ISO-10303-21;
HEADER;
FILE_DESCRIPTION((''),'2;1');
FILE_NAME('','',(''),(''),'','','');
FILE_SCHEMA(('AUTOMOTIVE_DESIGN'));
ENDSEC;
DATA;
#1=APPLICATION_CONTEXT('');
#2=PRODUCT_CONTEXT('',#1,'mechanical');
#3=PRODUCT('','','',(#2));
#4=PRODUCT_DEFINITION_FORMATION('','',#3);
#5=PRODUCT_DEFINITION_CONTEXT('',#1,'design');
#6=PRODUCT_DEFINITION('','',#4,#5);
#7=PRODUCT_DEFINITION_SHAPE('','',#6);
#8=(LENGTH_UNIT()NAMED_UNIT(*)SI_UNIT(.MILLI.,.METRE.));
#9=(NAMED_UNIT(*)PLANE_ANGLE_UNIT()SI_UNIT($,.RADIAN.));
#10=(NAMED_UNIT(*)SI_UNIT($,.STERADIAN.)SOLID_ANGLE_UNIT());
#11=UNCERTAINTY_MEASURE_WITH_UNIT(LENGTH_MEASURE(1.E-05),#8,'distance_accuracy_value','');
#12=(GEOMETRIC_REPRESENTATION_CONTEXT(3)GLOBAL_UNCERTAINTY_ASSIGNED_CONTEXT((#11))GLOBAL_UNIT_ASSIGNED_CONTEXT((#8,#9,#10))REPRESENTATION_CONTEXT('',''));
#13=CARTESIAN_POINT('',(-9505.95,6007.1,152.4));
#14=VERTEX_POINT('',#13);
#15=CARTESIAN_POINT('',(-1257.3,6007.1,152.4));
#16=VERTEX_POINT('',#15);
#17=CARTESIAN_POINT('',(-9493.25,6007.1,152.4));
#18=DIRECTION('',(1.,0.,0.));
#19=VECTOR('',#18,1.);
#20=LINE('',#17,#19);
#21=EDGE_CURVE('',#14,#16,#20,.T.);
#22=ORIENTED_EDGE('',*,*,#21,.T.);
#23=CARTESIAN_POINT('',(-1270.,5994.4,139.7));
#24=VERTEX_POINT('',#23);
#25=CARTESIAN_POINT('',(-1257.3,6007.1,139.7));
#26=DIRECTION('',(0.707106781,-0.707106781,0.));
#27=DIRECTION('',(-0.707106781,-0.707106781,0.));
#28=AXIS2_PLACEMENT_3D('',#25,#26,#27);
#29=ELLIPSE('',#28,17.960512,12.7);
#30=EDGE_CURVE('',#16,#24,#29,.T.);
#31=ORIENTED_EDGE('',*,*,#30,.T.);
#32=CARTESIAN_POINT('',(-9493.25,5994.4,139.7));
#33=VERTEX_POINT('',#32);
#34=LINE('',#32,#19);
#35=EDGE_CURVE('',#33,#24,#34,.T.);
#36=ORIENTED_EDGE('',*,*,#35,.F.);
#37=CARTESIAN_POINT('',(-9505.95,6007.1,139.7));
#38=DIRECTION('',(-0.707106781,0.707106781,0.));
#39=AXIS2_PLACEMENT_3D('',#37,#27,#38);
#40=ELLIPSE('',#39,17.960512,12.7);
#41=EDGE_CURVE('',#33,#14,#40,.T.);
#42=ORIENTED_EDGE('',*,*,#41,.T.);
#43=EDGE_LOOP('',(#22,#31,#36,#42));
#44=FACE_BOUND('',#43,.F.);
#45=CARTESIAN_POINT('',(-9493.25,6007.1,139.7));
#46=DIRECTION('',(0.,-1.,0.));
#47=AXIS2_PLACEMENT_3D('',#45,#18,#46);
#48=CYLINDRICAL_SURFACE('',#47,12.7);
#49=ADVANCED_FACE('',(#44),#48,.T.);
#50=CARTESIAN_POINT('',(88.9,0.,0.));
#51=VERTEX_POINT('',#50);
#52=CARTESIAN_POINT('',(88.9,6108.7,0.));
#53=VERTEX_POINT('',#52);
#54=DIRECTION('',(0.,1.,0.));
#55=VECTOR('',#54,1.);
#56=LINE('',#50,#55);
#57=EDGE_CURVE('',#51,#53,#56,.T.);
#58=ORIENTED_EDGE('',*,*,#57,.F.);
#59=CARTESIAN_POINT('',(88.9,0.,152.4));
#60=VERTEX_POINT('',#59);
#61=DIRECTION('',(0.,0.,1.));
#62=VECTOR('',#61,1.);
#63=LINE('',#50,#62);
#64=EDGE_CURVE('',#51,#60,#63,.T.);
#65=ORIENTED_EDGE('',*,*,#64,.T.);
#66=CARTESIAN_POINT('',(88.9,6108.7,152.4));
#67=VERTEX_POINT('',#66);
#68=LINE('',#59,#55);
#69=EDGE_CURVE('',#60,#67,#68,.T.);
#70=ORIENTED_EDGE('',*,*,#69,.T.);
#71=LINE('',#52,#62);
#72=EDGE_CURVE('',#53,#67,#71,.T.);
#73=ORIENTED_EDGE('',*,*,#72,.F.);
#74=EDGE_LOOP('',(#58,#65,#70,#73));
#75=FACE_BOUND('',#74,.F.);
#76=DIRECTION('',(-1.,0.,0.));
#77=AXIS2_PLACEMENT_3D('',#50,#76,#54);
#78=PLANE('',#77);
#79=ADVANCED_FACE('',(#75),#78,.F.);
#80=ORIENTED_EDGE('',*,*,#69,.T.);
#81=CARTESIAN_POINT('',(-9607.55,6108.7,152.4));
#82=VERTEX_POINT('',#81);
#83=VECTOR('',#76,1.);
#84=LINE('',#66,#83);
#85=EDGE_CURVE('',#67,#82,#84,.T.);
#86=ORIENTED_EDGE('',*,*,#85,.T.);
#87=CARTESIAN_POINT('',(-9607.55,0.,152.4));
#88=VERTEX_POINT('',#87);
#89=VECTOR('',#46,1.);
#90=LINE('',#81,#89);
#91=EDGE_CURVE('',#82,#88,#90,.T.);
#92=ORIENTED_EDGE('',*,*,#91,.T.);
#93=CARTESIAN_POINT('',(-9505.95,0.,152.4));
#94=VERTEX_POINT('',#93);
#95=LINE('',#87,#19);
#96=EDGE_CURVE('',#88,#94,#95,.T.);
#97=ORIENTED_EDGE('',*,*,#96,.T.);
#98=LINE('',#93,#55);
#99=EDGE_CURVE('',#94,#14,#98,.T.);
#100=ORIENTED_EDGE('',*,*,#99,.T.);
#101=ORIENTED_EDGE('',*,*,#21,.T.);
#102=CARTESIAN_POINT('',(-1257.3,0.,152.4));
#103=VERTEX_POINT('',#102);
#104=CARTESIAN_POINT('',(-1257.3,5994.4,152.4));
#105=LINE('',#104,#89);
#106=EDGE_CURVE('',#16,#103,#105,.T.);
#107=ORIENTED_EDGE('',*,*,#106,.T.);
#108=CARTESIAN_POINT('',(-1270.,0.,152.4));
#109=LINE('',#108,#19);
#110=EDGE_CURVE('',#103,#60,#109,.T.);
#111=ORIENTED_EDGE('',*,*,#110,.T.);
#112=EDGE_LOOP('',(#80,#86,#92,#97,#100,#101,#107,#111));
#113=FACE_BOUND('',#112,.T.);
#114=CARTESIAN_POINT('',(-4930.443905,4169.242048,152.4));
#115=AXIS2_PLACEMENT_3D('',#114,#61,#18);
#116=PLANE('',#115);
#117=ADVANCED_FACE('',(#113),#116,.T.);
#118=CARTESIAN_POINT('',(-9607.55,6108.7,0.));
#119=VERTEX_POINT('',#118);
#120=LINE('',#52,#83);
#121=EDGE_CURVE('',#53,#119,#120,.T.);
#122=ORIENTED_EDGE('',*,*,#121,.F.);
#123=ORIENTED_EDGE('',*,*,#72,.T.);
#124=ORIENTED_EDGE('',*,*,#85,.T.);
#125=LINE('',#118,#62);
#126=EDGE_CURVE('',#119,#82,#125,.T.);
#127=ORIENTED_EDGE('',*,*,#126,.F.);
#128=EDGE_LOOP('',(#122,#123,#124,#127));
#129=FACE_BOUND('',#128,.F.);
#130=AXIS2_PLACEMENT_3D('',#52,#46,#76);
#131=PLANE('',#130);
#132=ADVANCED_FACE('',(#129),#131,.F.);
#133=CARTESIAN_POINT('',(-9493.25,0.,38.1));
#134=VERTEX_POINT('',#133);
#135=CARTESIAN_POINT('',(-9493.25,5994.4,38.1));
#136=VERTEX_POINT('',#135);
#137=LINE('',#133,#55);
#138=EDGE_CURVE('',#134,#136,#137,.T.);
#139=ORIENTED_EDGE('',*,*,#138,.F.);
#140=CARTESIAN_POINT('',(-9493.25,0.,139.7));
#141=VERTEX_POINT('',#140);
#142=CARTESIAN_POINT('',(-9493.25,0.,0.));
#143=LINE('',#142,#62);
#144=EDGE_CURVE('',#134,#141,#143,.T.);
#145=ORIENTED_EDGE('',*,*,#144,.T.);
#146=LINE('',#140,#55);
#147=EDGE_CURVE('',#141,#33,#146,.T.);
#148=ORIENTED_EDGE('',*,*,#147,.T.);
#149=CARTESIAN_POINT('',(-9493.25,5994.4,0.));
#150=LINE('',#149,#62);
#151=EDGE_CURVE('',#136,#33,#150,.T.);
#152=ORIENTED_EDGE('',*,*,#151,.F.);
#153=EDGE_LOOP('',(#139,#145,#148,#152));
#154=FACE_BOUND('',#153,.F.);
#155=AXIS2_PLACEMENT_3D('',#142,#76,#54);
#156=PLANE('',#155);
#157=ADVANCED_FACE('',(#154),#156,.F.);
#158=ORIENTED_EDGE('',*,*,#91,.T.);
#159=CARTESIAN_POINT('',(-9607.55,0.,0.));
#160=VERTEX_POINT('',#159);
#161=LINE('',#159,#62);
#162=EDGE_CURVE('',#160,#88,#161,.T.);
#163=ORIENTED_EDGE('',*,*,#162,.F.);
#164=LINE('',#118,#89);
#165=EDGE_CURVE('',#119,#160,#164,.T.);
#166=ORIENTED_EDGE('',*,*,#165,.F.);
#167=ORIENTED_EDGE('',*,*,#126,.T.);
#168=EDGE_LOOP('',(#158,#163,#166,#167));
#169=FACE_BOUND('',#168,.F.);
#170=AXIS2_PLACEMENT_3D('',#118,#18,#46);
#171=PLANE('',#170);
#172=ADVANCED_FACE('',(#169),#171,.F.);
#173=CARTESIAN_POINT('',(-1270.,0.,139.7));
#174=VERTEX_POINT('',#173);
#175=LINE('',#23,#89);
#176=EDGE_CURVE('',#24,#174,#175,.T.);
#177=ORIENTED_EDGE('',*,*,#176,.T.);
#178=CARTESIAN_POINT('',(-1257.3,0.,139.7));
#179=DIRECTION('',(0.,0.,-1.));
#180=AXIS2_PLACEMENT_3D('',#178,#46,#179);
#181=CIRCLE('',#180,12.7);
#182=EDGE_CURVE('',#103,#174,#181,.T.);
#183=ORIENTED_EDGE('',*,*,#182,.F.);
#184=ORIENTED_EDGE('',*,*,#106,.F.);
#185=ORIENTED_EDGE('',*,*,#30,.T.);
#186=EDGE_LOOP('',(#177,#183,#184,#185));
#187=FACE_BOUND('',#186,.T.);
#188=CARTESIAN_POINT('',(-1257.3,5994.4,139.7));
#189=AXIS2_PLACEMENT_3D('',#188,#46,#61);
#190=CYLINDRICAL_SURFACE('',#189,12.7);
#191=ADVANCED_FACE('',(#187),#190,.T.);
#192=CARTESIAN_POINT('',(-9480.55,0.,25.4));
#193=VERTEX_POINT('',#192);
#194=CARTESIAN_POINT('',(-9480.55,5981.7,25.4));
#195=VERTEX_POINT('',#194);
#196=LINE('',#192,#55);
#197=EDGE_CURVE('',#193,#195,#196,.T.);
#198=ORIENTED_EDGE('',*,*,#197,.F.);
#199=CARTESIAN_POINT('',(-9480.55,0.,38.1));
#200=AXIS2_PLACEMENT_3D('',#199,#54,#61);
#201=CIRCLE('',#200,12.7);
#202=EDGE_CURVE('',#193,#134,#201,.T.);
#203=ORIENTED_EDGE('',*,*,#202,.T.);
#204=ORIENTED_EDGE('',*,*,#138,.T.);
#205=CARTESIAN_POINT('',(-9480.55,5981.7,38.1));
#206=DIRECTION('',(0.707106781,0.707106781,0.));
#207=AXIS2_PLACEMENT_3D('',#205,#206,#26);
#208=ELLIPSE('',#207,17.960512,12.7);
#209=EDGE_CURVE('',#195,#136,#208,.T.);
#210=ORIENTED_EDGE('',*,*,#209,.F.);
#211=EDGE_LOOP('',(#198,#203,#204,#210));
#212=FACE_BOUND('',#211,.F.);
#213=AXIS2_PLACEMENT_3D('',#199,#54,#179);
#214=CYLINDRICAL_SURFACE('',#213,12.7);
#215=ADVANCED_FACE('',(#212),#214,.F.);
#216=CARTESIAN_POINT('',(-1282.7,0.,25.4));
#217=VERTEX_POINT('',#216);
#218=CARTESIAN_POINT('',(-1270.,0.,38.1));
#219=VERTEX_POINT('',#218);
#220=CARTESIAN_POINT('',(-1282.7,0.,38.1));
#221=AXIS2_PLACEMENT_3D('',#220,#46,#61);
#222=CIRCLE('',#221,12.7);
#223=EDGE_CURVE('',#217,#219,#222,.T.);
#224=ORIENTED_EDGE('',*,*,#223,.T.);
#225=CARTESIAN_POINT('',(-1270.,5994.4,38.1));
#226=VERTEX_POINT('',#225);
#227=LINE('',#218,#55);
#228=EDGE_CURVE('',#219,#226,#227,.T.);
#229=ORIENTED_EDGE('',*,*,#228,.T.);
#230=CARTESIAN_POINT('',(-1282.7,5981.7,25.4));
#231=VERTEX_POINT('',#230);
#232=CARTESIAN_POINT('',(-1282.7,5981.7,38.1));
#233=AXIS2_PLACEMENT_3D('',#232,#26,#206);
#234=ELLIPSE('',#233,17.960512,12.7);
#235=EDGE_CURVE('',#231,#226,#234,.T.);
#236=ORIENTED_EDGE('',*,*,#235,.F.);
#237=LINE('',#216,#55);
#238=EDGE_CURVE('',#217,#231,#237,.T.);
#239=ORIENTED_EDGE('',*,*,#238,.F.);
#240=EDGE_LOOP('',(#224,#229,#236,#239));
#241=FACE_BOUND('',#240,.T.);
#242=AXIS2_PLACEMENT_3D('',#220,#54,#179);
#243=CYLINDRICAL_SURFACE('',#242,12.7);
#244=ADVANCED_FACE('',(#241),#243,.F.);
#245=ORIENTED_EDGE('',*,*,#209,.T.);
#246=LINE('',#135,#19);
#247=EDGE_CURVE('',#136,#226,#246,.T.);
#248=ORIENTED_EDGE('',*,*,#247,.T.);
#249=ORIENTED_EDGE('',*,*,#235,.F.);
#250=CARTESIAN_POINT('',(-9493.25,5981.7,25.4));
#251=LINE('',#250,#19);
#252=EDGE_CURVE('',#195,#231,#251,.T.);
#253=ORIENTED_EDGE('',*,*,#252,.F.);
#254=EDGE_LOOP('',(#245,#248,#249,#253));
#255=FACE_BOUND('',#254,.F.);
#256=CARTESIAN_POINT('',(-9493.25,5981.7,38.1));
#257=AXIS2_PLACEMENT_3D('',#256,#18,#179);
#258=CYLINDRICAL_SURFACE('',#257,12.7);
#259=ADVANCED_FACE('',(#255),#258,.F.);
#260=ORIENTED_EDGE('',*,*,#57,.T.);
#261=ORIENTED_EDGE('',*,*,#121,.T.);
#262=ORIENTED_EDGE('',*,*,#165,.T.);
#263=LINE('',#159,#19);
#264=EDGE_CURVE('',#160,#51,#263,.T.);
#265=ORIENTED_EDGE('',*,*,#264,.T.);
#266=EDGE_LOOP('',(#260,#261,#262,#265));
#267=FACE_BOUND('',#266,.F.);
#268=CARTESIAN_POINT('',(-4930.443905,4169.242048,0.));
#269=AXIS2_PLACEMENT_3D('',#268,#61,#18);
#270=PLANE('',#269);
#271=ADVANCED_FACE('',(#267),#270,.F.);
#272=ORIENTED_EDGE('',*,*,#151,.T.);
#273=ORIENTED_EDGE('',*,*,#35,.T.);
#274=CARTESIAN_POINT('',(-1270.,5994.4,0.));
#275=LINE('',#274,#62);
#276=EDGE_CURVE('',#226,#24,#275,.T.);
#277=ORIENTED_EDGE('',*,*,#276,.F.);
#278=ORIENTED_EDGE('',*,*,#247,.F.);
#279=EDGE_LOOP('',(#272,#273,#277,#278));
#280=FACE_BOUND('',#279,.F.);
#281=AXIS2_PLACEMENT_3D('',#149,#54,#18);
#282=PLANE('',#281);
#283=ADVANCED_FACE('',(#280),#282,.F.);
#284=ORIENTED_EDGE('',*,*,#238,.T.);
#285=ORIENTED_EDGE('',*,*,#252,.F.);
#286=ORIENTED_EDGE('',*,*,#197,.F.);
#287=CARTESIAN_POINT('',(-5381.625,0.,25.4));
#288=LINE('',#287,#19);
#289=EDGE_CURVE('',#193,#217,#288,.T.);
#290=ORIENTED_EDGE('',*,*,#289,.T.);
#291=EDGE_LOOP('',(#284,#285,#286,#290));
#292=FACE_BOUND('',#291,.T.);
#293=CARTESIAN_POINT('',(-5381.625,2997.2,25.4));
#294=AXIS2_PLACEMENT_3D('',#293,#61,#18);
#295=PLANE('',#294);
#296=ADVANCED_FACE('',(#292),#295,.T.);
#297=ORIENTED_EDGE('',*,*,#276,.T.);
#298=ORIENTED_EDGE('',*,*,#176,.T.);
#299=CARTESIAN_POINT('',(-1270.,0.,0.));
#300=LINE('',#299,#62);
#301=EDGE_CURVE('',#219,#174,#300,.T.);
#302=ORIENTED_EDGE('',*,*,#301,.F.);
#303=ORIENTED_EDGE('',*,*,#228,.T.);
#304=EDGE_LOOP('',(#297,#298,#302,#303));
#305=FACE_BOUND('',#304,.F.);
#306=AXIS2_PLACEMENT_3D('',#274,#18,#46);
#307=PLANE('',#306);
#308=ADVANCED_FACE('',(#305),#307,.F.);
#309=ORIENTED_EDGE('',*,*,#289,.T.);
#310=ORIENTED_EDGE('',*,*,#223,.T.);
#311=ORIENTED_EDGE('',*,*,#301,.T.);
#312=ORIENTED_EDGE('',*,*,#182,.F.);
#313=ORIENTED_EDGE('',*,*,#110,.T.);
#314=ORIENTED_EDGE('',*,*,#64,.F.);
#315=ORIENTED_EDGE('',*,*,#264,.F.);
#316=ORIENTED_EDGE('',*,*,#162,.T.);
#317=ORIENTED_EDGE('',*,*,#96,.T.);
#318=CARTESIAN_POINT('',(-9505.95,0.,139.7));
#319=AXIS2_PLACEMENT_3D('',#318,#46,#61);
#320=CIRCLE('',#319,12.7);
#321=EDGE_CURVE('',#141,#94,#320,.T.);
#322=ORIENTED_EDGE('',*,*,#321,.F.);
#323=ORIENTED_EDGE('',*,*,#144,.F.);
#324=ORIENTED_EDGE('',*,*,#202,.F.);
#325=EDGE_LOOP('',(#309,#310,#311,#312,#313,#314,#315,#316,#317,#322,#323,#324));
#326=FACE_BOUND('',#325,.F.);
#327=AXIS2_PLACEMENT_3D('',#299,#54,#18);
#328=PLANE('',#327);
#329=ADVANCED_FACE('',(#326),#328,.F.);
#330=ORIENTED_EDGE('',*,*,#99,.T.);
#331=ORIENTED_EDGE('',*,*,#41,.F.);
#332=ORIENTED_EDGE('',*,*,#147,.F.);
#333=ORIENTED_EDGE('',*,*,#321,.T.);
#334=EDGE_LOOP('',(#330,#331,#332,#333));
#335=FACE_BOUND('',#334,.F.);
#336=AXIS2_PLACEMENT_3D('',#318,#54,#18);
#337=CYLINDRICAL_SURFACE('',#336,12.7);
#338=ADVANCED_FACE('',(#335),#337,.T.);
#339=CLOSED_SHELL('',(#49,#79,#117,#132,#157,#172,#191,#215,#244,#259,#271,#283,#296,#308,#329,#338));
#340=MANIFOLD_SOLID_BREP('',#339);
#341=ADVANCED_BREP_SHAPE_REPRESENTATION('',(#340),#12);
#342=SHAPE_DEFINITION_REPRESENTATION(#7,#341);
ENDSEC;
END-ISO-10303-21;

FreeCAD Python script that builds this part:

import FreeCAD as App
import Part
import Sketcher
from FreeCAD import Vector
Q = App.Units.Quantity


def edges_at(feature, points):
    """Names of the edges that pass closest to the given points."""
    edges = feature.Shape.Edges
    near = lambda p: min(range(len(edges)), key=lambda i: edges[i].distToShape(Part.Vertex(*p))[0])
    return sorted({f"Edge{near(p) + 1}" for p in points})


def add_polygon(sketch, points):
    """Adds a closed chain of lines whose ends are joined by coincident constraints."""
    first, n = sketch.GeometryCount, len(points)
    for a, b in zip(points, points[1:] + points[:1]):
        sketch.addGeometry(Part.LineSegment(App.Vector(*a, 0), App.Vector(*b, 0)), False)
    for i in range(n):
        sketch.addConstraint(Sketcher.Constraint("Coincident", first + i, 2, first + (i + 1) % n, 1))

doc = App.newDocument("Part")
body = doc.addObject("PartDesign::Body", "Body")

sketch1 = doc.addObject("Sketcher::SketchObject", "Sketch")
body.addObject(sketch1)
sketch1.AttachmentSupport = (doc.XY_Plane, [""])
sketch1.MapMode = "FlatFace"
add_polygon(sketch1, [(-9493, 5994), (-9493, 0), (-1270, 0), (-1270, 5994)])
sketch1.addConstraint(Sketcher.Constraint("Vertical", 0))
sketch1.addConstraint(Sketcher.Constraint("Horizontal", 1))
sketch1.addConstraint(Sketcher.Constraint("Vertical", 2))
sketch1.addConstraint(Sketcher.Constraint("Horizontal", 3))
sketch1.addConstraint(Sketcher.Constraint("PointOnObject", 0, 2, -1))
sketch1.addConstraint(Sketcher.Constraint("DistanceY", 0, 2, 0, 1, Q("236 in")))
sketch1.addConstraint(Sketcher.Constraint("DistanceX", 1, 2, -1, 1, Q("50 in")))
sketch1.addConstraint(Sketcher.Constraint("DistanceX", 1, 1, 1, 2, Q("323.75 in")))
pad1 = doc.addObject("PartDesign::Pad", "Pad")
body.addObject(pad1)
pad1.Profile = sketch1
pad1.Length = Q("1 in")

sketch2 = doc.addObject("Sketcher::SketchObject", "Sketch001")
body.addObject(sketch2)
sketch2.AttachmentSupport = (doc.XY_Plane, [""])
sketch2.MapMode = "FlatFace"
add_polygon(sketch2, [(-1270, 0), (89, 0), (89, 6109), (-9608, 6109), (-9608, 0), (-9493, 0), (-9493, 5994), (-1270, 5994)])
sketch2.addConstraint(Sketcher.Constraint("Horizontal", 0))
sketch2.addConstraint(Sketcher.Constraint("Vertical", 1))
sketch2.addConstraint(Sketcher.Constraint("Horizontal", 2))
sketch2.addConstraint(Sketcher.Constraint("Vertical", 3))
sketch2.addConstraint(Sketcher.Constraint("Horizontal", 4))
sketch2.addConstraint(Sketcher.Constraint("Vertical", 5))
sketch2.addConstraint(Sketcher.Constraint("Horizontal", 6))
sketch2.addConstraint(Sketcher.Constraint("Vertical", 7))
sketch2.addConstraint(Sketcher.Constraint("PointOnObject", 0, 2, -1))
sketch2.addConstraint(Sketcher.Constraint("PointOnObject", 3, 2, -1))
sketch2.addConstraint(Sketcher.Constraint("DistanceY", 5, 1, 5, 2, Q("236 in")))
sketch2.addConstraint(Sketcher.Constraint("DistanceX", 0, 1, 0, 2, Q("53.5 in")))
sketch2.addConstraint(Sketcher.Constraint("DistanceX", 4, 1, 4, 2, Q("4.5 in")))
sketch2.addConstraint(Sketcher.Constraint("DistanceY", 1, 1, 1, 2, Q("240.5 in")))
sketch2.addConstraint(Sketcher.Constraint("DistanceX", 6, 2, -1, 1, Q("50 in")))
sketch2.addConstraint(Sketcher.Constraint("DistanceX", 2, 2, 2, 1, Q("381.75 in")))
pad2 = doc.addObject("PartDesign::Pad", "Pad001")
body.addObject(pad2)
pad2.Profile = sketch2
pad2.Length = Q("6 in")
doc.recompute()

fillet = doc.addObject("PartDesign::Fillet", "Fillet")
body.addObject(fillet)
fillet.Base = (pad2, edges_at(pad2, [
    (-1270, 2997.2, 152.4),
    (-1270, 2997.2, 25.4),
    (-5381.625, 5994.4, 25.4),
    (-9493.25, 2997.2, 25.4),
    (-9493.25, 2997.2, 152.4),
    (-5381.625, 5994.4, 152.4),
]))
fillet.Radius = Q("0.5 in")

doc.recompute()
